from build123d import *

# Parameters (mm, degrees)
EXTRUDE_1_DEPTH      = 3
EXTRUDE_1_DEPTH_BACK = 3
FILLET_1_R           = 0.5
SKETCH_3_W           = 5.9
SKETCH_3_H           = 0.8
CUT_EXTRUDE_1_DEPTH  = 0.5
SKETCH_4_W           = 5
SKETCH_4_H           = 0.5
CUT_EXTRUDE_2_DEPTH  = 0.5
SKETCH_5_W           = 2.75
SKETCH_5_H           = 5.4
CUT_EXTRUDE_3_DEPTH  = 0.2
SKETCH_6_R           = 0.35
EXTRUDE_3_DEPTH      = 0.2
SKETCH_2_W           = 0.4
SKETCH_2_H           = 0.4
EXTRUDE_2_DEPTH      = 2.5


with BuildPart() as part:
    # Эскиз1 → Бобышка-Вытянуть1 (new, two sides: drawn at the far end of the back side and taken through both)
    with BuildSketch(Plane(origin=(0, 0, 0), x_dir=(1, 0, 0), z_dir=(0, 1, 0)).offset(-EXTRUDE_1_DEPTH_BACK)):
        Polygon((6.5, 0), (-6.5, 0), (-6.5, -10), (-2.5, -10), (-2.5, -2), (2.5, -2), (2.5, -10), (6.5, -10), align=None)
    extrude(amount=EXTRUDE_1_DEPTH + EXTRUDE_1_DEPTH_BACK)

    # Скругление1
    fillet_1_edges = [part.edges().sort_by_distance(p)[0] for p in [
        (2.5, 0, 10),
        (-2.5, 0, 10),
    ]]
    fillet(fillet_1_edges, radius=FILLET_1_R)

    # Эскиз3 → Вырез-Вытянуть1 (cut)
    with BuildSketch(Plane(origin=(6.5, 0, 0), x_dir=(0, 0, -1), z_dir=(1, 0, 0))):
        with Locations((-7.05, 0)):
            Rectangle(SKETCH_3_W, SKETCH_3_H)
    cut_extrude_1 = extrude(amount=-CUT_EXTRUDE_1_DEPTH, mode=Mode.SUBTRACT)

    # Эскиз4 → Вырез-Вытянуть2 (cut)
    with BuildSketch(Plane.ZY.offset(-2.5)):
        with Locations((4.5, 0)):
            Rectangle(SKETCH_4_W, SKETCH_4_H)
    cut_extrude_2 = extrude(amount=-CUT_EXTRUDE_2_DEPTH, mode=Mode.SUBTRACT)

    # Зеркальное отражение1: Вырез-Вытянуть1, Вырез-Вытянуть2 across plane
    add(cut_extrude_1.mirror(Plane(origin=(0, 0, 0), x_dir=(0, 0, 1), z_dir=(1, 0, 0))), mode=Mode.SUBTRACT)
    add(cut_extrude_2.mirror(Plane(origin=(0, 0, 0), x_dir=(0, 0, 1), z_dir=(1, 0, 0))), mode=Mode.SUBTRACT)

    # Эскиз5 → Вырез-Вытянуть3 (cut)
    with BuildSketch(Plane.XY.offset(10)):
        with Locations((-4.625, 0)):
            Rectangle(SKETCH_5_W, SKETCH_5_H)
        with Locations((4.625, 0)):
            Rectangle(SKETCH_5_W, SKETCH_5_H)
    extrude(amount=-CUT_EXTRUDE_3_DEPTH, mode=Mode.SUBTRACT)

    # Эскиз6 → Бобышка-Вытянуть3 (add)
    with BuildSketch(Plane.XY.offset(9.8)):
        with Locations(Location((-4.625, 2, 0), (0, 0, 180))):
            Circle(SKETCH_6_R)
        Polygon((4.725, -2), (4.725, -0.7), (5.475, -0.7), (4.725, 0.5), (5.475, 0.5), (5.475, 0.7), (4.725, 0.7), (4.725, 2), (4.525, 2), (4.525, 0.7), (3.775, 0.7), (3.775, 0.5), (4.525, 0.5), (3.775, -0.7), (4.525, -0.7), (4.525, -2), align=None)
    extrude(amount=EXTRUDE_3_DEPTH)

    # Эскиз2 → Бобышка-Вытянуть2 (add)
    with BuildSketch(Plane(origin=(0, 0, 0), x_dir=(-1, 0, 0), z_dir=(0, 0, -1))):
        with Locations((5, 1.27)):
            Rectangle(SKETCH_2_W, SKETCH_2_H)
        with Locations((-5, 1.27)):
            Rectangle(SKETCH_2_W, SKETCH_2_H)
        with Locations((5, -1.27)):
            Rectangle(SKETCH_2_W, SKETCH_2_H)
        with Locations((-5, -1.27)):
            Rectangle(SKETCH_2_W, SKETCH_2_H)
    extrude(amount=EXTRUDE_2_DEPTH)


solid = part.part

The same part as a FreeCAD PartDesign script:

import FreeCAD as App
import Part
import Sketcher

V = App.Vector
Q = App.Units.Quantity


def edges_at(feature, points):
    """Names of the edges that pass closest to the given points."""
    edges = feature.Shape.Edges
    near = lambda p: min(range(len(edges)), key=lambda i: edges[i].distToShape(Part.Vertex(*p))[0])
    return sorted({f"Edge{near(p) + 1}" for p in points})


def add_polygon(sketch, points):
    """Adds a closed chain of lines whose ends are joined by coincident constraints."""
    first, n = sketch.GeometryCount, len(points)
    for a, b in zip(points, points[1:] + points[:1]):
        sketch.addGeometry(Part.LineSegment(App.Vector(*a, 0), App.Vector(*b, 0)), False)
    for i in range(n):
        sketch.addConstraint(Sketcher.Constraint("Coincident", first + i, 2, first + (i + 1) % n, 1))

doc = App.newDocument("Part")
params = doc.addObject("Spreadsheet::Sheet", "Params")
for row, (alias, value) in enumerate([
    ("sketch1_width", "13 mm"),
    ("sketch1_width2", "4 mm"),
    ("sketch1_height", "10 mm"),
    ("sketch1_height2", "8 mm"),
    ("pad1_length", "3 mm"),
    ("pad1_length2", "3 mm"),
    ("fillet_radius", "0.5 mm"),
    ("sketch2_width", "0.8 mm"),
    ("sketch2_height", "5.9 mm"),
    ("pocket1_length", "0.5 mm"),
    ("sketch3_height", "5 mm"),
    ("sketch3_width", "0.5 mm"),
    ("pocket2_length", "0.5 mm"),
    ("sketch4_height", "5.4 mm"),
    ("sketch4_width", "2.75 mm"),
    ("pocket3_length", "0.2 mm"),
    ("sketch5_diameter", "0.7 mm"),
    ("sketch5_width", "0.2 mm"),
    ("sketch5_height", "1.3 mm"),
    ("sketch5_width2", "0.75 mm"),
    ("pad2_length", "0.2 mm"),
    ("sketch6_width", "0.4 mm"),
    ("pad3_length", "2.5 mm"),
], start=1):
    params.set(f"A{row}", alias)
    params.set(f"B{row}", "=" + value)
    params.setAlias(f"B{row}", alias)

body = doc.addObject("PartDesign::Body", "Body")

# Sketch on XZ plane
sketch1 = body.newObject("Sketcher::SketchObject", "Sketch")
sketch1.AttachmentSupport = (doc.getObject("XZ_Plane"), [""])
sketch1.MapMode = "FlatFace"
add_polygon(sketch1, [(6.5, 0), (-6.5, 0), (-6.5, 10), (-2.5, 10), (-2.5, 2), (2.5, 2), (2.5, 10), (6.5, 10)])  # lines 0-7
sketch1.addConstraint([
    Sketcher.Constraint("Horizontal", 0),
    Sketcher.Constraint("Vertical", 1),
    Sketcher.Constraint("Horizontal", 2),
    Sketcher.Constraint("Vertical", 3),
    Sketcher.Constraint("Horizontal", 4),
    Sketcher.Constraint("Vertical", 5),
    Sketcher.Constraint("Horizontal", 6),
    Sketcher.Constraint("Vertical", 7),
    Sketcher.Constraint("Symmetric", 0, 2, 7, 2, -1, 1),
    Sketcher.Constraint("Symmetric", 2, 2, 5, 2, -2),
    Sketcher.Constraint("DistanceX", 0, 2, 0, 1, Q("13 mm")),
    Sketcher.Constraint("DistanceX", 2, 1, 2, 2, Q("4 mm")),
    Sketcher.Constraint("DistanceY", 1, 1, 1, 2, Q("10 mm")),
    Sketcher.Constraint("DistanceY", 3, 2, 3, 1, Q("8 mm")),
])
sketch1.setExpression("Constraints[18]", "Params.sketch1_width")
sketch1.setExpression("Constraints[19]", "Params.sketch1_width2")
sketch1.setExpression("Constraints[20]", "Params.sketch1_height")
sketch1.setExpression("Constraints[21]", "Params.sketch1_height2")
pad1 = body.newObject("PartDesign::Pad", "Pad")
pad1.Profile = sketch1
pad1.Type = "TwoLengths"
pad1.setExpression("Length", "Params.pad1_length")
pad1.setExpression("Length2", "Params.pad1_length2")
pad1.Reversed = True
doc.recompute()

fillet = body.newObject("PartDesign::Fillet", "Fillet")
fillet.Base = (pad1, edges_at(pad1, [(2.5, 0, 10), (-2.5, 0, 10)]))
fillet.setExpression("Radius", "Params.fillet_radius")

# Sketch on YZ plane
sketch2 = body.newObject("Sketcher::SketchObject", "Sketch001")
sketch2.AttachmentSupport = (doc.getObject("YZ_Plane"), [""])
sketch2.MapMode = "FlatFace"
sketch2.AttachmentOffset = App.Placement(V(0, 0, 6.5), App.Rotation())
add_polygon(sketch2, [(0.4, 10), (-0.4, 10), (-0.4, 4.1), (0.4, 4.1)])  # lines 0-3
sketch2.addConstraint([
    Sketcher.Constraint("Horizontal", 0),
    Sketcher.Constraint("Vertical", 1),
    Sketcher.Constraint("Horizontal", 2),
    Sketcher.Constraint("Vertical", 3),
    Sketcher.Constraint("DistanceX", 0, 2, 0, 1, Q("0.8 mm")),
    Sketcher.Constraint("DistanceY", 1, 2, 1, 1, Q("5.9 mm")),
    Sketcher.Constraint("DistanceY", -1, 1, 0, 2, Q("10 mm")),
    Sketcher.Constraint("DistanceX", 0, 2, -1, 1, Q("0.4 mm")),
])
sketch2.setExpression("Constraints[8]", "Params.sketch2_width")
sketch2.setExpression("Constraints[9]", "Params.sketch2_height")
pocket1 = body.newObject("PartDesign::Pocket", "Pocket")
pocket1.Profile = sketch2
pocket1.setExpression("Length", "Params.pocket1_length")

# Sketch on YZ plane
sketch3 = body.newObject("Sketcher::SketchObject", "Sketch002")
sketch3.AttachmentSupport = (doc.getObject("YZ_Plane"), [""])
sketch3.MapMode = "FlatFace"
sketch3.AttachmentOffset = App.Placement(V(0, 0, 2.5), App.Rotation())
add_polygon(sketch3, [(0.25, 2), (-0.25, 2), (-0.25, 7), (0.25, 7)])  # lines 0-3
sketch3.addConstraint([
    Sketcher.Constraint("Horizontal", 0),
    Sketcher.Constraint("Vertical", 1),
    Sketcher.Constraint("Horizontal", 2),
    Sketcher.Constraint("Vertical", 3),
    Sketcher.Constraint("DistanceY", 1, 1, 1, 2, Q("5 mm")),
    Sketcher.Constraint("DistanceX", 0, 2, 0, 1, Q("0.5 mm")),
    Sketcher.Constraint("DistanceY", -1, 1, 0, 2, Q("2 mm")),
    Sketcher.Constraint("DistanceX", 0, 2, -1, 1, Q("0.25 mm")),
])
sketch3.setExpression("Constraints[8]", "Params.sketch3_height")
sketch3.setExpression("Constraints[9]", "Params.sketch3_width")
pocket2 = body.newObject("PartDesign::Pocket", "Pocket001")
pocket2.Profile = sketch3
pocket2.setExpression("Length", "Params.pocket2_length")
pocket2.Reversed = True
doc.recompute()

mirrored = body.newObject("PartDesign::Mirrored", "Mirrored")
mirrored.Originals = [pocket1, pocket2]
mirrored.MirrorPlane = (doc.getObject("YZ_Plane"), [""])
body.Tip = mirrored

# Sketch on XY plane
sketch4 = body.newObject("Sketcher::SketchObject", "Sketch003")
sketch4.AttachmentSupport = (doc.getObject("XY_Plane"), [""])
sketch4.MapMode = "FlatFace"
sketch4.AttachmentOffset = App.Placement(V(0, 0, 10), App.Rotation())
add_polygon(sketch4, [(-6, 2.7), (-6, -2.7), (-3.25, -2.7), (-3.25, 2.7)])  # lines 0-3
add_polygon(sketch4, [(3.25, 2.7), (3.25, -2.7), (6, -2.7), (6, 2.7)])  # lines 4-7
sketch4.addConstraint([
    Sketcher.Constraint("Vertical", 0),
    Sketcher.Constraint("Horizontal", 1),
    Sketcher.Constraint("Vertical", 2),
    Sketcher.Constraint("Horizontal", 3),
    Sketcher.Constraint("Vertical", 4),
    Sketcher.Constraint("Horizontal", 5),
    Sketcher.Constraint("Vertical", 6),
    Sketcher.Constraint("Horizontal", 7),
    Sketcher.Constraint("Symmetric", 2, 2, 4, 2, -1, 1),
    Sketcher.Constraint("Symmetric", 0, 2, 6, 2, -1, 1),
    Sketcher.Constraint("Horizontal", 1, 2, 4, 2),
    Sketcher.Constraint("DistanceY", 0, 2, 0, 1, Q("5.4 mm")),
    Sketcher.Constraint("DistanceX", 0, 2, -1, 1, Q("6 mm")),
    Sketcher.Constraint("DistanceX", 1, 1, 1, 2, Q("2.75 mm")),
])
sketch4.setExpression("Constraints[19]", "Params.sketch4_height")
sketch4.setExpression("Constraints[21]", "Params.sketch4_width")
pocket3 = body.newObject("PartDesign::Pocket", "Pocket002")
pocket3.Profile = sketch4
pocket3.setExpression("Length", "Params.pocket3_length")

# Sketch on XY plane
sketch5 = body.newObject("Sketcher::SketchObject", "Sketch004")
sketch5.AttachmentSupport = (doc.getObject("XY_Plane"), [""])
sketch5.MapMode = "FlatFace"
sketch5.AttachmentOffset = App.Placement(V(0, 0, 9.8), App.Rotation())
sketch5.addGeometry(Part.Circle(V(-4.625, 2, 0), V(0, 0, 1), 0.35), False)  # 0
add_polygon(sketch5, [(4.725, -2), (4.725, -0.7), (5.475, -0.7), (4.725, 0.5), (5.475, 0.5), (5.475, 0.7), (4.725, 0.7), (4.725, 2), (4.525, 2), (4.525, 0.7), (3.775, 0.7), (3.775, 0.5), (4.525, 0.5), (3.775, -0.7), (4.525, -0.7), (4.525, -2)])  # lines 1-16
sketch5.addConstraint([
    Sketcher.Constraint("Vertical", 1),
    Sketcher.Constraint("Horizontal", 2),
    Sketcher.Constraint("Horizontal", 4),
    Sketcher.Constraint("Vertical", 5),
    Sketcher.Constraint("Horizontal", 6),
    Sketcher.Constraint("Vertical", 7),
    Sketcher.Constraint("Horizontal", 8),
    Sketcher.Constraint("Vertical", 9),
    Sketcher.Constraint("Horizontal", 10),
    Sketcher.Constraint("Vertical", 11),
    Sketcher.Constraint("Horizontal", 12),
    Sketcher.Constraint("Horizontal", 14),
    Sketcher.Constraint("Vertical", 15),
    Sketcher.Constraint("Horizontal", 16),
    Sketcher.Constraint("Symmetric", 2, 2, 5, 2, -1),
    Sketcher.Constraint("Symmetric", 10, 2, 13, 2, -1),
    Sketcher.Constraint("Symmetric", 8, 2, 15, 2, -1),
    Sketcher.Constraint("Horizontal", 0, 3, 7, 2),
    Sketcher.Constraint("Horizontal", 6, 2, 9, 2),
    Sketcher.Constraint("Horizontal", 4, 2, 11, 2),
    Sketcher.Constraint("Vertical", 1, 2, 3, 2),
    Sketcher.Constraint("Vertical", 3, 2, 6, 2),
    Sketcher.Constraint("Vertical", 9, 2, 12, 2),
    Sketcher.Constraint("Equal", 6, 10),
    Sketcher.Constraint("Equal", 16, 5),
    Sketcher.Constraint("Diameter", 0, Q("0.7 mm")),
    Sketcher.Constraint("DistanceX", 8, 2, 8, 1, Q("0.2 mm")),
    Sketcher.Constraint("DistanceY", 1, 1, 1, 2, Q("1.3 mm")),
    Sketcher.Constraint("DistanceY", -1, 1, 0, 3, Q("2 mm")),
    Sketcher.Constraint("DistanceX", 2, 1, 2, 2, Q("0.75 mm")),
    Sketcher.Constraint("DistanceX", 0, 3, 2, 2, Q("10.1 mm")),
    Sketcher.Constraint("DistanceX", 0, 3, -1, 1, Q("4.625 mm")),
])
sketch5.setExpression("Constraints[41]", "Params.sketch5_diameter")
sketch5.setExpression("Constraints[42]", "Params.sketch5_width")
sketch5.setExpression("Constraints[43]", "Params.sketch5_height")
sketch5.setExpression("Constraints[45]", "Params.sketch5_width2")
pad2 = body.newObject("PartDesign::Pad", "Pad001")
pad2.Profile = sketch5
pad2.setExpression("Length", "Params.pad2_length")

# Sketch on XY plane
sketch6 = body.newObject("Sketcher::SketchObject", "Sketch005")
sketch6.AttachmentSupport = (doc.getObject("XY_Plane"), [""])
sketch6.MapMode = "FlatFace"
add_polygon(sketch6, [(-4.8, 1.47), (-4.8, 1.07), (-5.2, 1.07), (-5.2, 1.47)])  # lines 0-3
add_polygon(sketch6, [(5.2, 1.47), (5.2, 1.07), (4.8, 1.07), (4.8, 1.47)])  # lines 4-7
add_polygon(sketch6, [(-4.8, -1.07), (-4.8, -1.47), (-5.2, -1.47), (-5.2, -1.07)])  # lines 8-11
add_polygon(sketch6, [(5.2, -1.07), (5.2, -1.47), (4.8, -1.47), (4.8, -1.07)])  # lines 12-15
sketch6.addConstraint([
    Sketcher.Constraint("Vertical", 0),
    Sketcher.Constraint("Horizontal", 1),
    Sketcher.Constraint("Vertical", 2),
    Sketcher.Constraint("Horizontal", 3),
    Sketcher.Constraint("Vertical", 4),
    Sketcher.Constraint("Horizontal", 5),
    Sketcher.Constraint("Vertical", 6),
    Sketcher.Constraint("Horizontal", 7),
    Sketcher.Constraint("Vertical", 8),
    Sketcher.Constraint("Horizontal", 9),
    Sketcher.Constraint("Vertical", 10),
    Sketcher.Constraint("Horizontal", 11),
    Sketcher.Constraint("Vertical", 12),
    Sketcher.Constraint("Horizontal", 13),
    Sketcher.Constraint("Vertical", 14),
    Sketcher.Constraint("Horizontal", 15),
    Sketcher.Constraint("Symmetric", 6, 2, 8, 2, -1, 1),
    Sketcher.Constraint("Symmetric", 4, 2, 10, 2, -1, 1),
    Sketcher.Constraint("Symmetric", 2, 2, 12, 2, -1, 1),
    Sketcher.Constraint("Symmetric", 0, 2, 14, 2, -1, 1),
    Sketcher.Constraint("Symmetric", 1, 2, 4, 2, -2),
    Sketcher.Constraint("Symmetric", 3, 2, 6, 2, -2),
    Sketcher.Constraint("Equal", 15, 0),
    Sketcher.Constraint("DistanceX", 1, 2, 1, 1, Q("0.4 mm")),
    Sketcher.Constraint("DistanceX", 0, 2, 4, 2, Q("10 mm")),
    Sketcher.Constraint("DistanceY", -1, 1, 0, 2, Q("1.07 mm")),
])
sketch6.setExpression("Constraints[39]", "Params.sketch6_width")
pad3 = body.newObject("PartDesign::Pad", "Pad002")
pad3.Profile = sketch6
pad3.setExpression("Length", "Params.pad3_length")
pad3.Reversed = True

doc.recompute()
